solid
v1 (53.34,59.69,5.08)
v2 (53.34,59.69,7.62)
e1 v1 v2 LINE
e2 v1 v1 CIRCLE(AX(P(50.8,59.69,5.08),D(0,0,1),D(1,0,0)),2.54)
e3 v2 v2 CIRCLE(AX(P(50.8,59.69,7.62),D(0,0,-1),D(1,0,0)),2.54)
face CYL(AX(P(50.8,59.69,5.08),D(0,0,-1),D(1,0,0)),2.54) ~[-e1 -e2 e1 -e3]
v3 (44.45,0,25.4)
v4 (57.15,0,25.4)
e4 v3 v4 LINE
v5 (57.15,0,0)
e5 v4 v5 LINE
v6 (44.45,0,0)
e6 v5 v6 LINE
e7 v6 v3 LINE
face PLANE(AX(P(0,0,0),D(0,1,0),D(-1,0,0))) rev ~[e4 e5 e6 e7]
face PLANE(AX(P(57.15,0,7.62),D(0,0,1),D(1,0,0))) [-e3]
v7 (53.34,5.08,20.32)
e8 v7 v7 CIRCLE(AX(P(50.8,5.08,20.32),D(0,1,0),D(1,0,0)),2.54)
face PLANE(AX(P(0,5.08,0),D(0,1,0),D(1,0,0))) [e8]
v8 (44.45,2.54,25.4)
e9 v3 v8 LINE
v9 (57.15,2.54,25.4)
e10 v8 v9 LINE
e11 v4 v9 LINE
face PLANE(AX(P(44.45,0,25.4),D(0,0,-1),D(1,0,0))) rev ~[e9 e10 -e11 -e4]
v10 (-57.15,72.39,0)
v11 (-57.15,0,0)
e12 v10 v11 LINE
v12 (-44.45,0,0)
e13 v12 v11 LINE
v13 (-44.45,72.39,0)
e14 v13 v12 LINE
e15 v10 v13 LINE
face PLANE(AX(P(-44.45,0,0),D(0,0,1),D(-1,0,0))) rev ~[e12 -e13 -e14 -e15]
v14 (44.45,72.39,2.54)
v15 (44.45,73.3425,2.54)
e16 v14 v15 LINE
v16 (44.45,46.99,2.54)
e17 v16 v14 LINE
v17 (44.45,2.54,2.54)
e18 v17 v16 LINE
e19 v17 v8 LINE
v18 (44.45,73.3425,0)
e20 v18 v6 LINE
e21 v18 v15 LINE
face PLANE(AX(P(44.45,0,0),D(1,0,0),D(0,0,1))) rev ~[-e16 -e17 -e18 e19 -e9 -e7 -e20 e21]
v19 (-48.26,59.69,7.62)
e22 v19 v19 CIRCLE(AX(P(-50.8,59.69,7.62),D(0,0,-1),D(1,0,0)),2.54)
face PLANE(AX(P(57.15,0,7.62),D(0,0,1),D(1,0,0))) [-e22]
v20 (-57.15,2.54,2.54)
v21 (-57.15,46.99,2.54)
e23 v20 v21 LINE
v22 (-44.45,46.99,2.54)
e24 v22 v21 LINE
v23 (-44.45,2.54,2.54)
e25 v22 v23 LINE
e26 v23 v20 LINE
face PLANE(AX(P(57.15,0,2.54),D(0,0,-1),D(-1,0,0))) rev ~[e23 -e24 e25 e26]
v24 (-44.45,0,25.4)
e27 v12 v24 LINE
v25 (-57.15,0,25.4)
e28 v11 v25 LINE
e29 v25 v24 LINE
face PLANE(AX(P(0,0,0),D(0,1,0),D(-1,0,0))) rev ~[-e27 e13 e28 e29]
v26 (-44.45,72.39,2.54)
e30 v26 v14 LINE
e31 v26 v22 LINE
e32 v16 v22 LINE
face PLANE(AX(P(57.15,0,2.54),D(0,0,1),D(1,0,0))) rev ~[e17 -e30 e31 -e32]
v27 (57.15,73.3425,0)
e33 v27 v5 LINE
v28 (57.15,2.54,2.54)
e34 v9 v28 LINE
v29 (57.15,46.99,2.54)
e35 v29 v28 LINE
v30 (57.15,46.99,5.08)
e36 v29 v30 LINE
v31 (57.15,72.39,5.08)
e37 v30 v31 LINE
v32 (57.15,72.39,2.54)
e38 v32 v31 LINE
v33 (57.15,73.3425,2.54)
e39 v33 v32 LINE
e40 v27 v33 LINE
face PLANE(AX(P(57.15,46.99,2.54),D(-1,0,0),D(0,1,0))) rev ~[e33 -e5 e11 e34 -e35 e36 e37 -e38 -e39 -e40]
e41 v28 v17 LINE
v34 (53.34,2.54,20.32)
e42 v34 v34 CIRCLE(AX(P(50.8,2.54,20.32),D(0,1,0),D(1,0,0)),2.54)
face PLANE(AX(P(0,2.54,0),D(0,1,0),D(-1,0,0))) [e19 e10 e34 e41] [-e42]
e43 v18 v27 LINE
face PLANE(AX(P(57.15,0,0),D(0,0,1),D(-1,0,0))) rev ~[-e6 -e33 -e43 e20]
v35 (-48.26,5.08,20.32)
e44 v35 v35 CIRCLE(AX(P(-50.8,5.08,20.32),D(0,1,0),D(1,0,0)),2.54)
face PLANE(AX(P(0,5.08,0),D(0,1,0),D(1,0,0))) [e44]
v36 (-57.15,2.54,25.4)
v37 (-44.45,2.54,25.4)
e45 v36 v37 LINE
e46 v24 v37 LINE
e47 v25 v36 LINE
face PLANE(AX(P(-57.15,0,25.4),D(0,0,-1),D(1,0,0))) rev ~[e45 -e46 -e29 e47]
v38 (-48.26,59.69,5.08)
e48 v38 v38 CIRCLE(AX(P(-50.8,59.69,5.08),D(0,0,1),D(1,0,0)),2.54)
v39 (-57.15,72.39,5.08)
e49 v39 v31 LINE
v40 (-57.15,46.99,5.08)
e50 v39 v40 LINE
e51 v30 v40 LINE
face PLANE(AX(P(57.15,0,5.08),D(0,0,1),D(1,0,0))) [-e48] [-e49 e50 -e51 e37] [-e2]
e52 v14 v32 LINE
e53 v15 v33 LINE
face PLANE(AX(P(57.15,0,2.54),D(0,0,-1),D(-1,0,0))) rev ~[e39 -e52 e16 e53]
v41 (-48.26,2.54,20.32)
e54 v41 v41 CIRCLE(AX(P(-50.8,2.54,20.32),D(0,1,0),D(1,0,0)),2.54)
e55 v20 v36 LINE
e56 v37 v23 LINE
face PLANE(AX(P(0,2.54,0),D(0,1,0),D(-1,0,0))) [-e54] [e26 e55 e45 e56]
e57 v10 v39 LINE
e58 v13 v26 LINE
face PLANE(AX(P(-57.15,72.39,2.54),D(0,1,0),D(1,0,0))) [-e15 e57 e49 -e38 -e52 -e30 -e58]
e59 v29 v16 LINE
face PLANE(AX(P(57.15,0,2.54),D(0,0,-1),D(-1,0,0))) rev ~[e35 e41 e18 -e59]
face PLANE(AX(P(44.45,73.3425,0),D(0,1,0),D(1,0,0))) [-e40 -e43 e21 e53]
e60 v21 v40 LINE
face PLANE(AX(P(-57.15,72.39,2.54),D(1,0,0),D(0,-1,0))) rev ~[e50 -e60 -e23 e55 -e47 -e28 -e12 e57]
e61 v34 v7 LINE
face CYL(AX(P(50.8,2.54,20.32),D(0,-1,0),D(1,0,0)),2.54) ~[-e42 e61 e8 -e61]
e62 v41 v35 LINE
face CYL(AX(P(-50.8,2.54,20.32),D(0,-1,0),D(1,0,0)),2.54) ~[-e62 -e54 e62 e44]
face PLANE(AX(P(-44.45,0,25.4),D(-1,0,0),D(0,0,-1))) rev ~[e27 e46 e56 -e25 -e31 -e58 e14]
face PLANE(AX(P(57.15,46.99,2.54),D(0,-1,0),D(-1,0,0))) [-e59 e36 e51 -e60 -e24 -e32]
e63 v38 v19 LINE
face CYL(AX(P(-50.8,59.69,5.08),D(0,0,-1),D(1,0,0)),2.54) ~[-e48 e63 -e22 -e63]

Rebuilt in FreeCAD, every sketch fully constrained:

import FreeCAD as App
import Part
import Sketcher

V = App.Vector
Q = App.Units.Quantity


def add_polygon(sketch, points):
    """Adds a closed chain of lines whose ends are joined by coincident constraints."""
    first, n = sketch.GeometryCount, len(points)
    for a, b in zip(points, points[1:] + points[:1]):
        sketch.addGeometry(Part.LineSegment(App.Vector(*a, 0), App.Vector(*b, 0)), False)
    for i in range(n):
        sketch.addConstraint(Sketcher.Constraint("Coincident", first + i, 2, first + (i + 1) % n, 1))

doc = App.newDocument("Part")
body = doc.addObject("PartDesign::Body", "Body")
body.AllowCompound = True

# Sketch on XZ plane
sketch1 = body.newObject("Sketcher::SketchObject", "Sketch")
sketch1.AttachmentSupport = (doc.getObject("XZ_Plane"), [""])
sketch1.MapMode = "FlatFace"
add_polygon(sketch1, [(-57, 0), (-57, 25), (-44, 25), (-44, 0)])  # lines 0-3
add_polygon(sketch1, [(44, 0), (44, 25), (57, 25), (57, 0)])  # lines 4-7
sketch1.addConstraint(Sketcher.Constraint("Vertical", 0))
sketch1.addConstraint(Sketcher.Constraint("Horizontal", 1))
sketch1.addConstraint(Sketcher.Constraint("Vertical", 2))
sketch1.addConstraint(Sketcher.Constraint("Horizontal", 3))
sketch1.addConstraint(Sketcher.Constraint("Vertical", 4))
sketch1.addConstraint(Sketcher.Constraint("Horizontal", 5))
sketch1.addConstraint(Sketcher.Constraint("Vertical", 6))
sketch1.addConstraint(Sketcher.Constraint("Horizontal", 7))
sketch1.addConstraint(Sketcher.Constraint("Symmetric", 3, 2, 6, 2, -1, 1))
sketch1.addConstraint(Sketcher.Constraint("Symmetric", 1, 2, 4, 2, -2))
sketch1.addConstraint(Sketcher.Constraint("PointOnObject", 2, 2, -1))
sketch1.addConstraint(Sketcher.Constraint("DistanceY", 0, 1, 0, 2, Q("1 in")))
sketch1.addConstraint(Sketcher.Constraint("DistanceX", 1, 1, 1, 2, Q("0.5 in")))
sketch1.addConstraint(Sketcher.Constraint("DistanceX", 0, 2, 5, 2, Q("4.5 in")))
pad1 = body.newObject("PartDesign::Pad", "Pad")
pad1.Profile = sketch1
pad1.Length = Q("0.1 in")
pad1.Reversed = True

# Sketch on XY plane
sketch2 = body.newObject("Sketcher::SketchObject", "Sketch001")
sketch2.AttachmentSupport = (doc.getObject("XY_Plane"), [""])
sketch2.MapMode = "FlatFace"
add_polygon(sketch2, [(57, 73), (57, 1), (44, 1), (44, 73)])  # lines 0-3
add_polygon(sketch2, [(-44, 72), (-44, 0), (-57, 0), (-57, 72)])  # lines 4-7
sketch2.addConstraint(Sketcher.Constraint("Vertical", 0))
sketch2.addConstraint(Sketcher.Constraint("Horizontal", 1))
sketch2.addConstraint(Sketcher.Constraint("Vertical", 2))
sketch2.addConstraint(Sketcher.Constraint("Horizontal", 3))
sketch2.addConstraint(Sketcher.Constraint("Vertical", 4))
sketch2.addConstraint(Sketcher.Constraint("Horizontal", 5))
sketch2.addConstraint(Sketcher.Constraint("Vertical", 6))
sketch2.addConstraint(Sketcher.Constraint("Horizontal", 7))
sketch2.addConstraint(Sketcher.Constraint("PointOnObject", 4, 2, -1))
sketch2.addConstraint(Sketcher.Constraint("Equal", 3, 5))
sketch2.addConstraint(Sketcher.Constraint("Equal", 2, 4))
sketch2.addConstraint(Sketcher.Constraint("DistanceX", 1, 2, 1, 1, Q("0.5 in")))
sketch2.addConstraint(Sketcher.Constraint("DistanceY", 0, 2, 0, 1, Q("2.85 in")))
sketch2.addConstraint(Sketcher.Constraint("DistanceX", 4, 2, 0, 2, Q("4 in")))
sketch2.addConstraint(Sketcher.Constraint("DistanceX", -1, 1, 0, 2, Q("2.25 in")))
sketch2.addConstraint(Sketcher.Constraint("DistanceY", 1, 2, 6, 2, Q("2.8125 in")))
pad2 = body.newObject("PartDesign::Pad", "Pad001")
pad2.Profile = sketch2
pad2.Length = Q("0.1 in")

# Sketch on XY plane
sketch3 = body.newObject("Sketcher::SketchObject", "Sketch002")
sketch3.AttachmentSupport = (doc.getObject("XY_Plane"), [""])
sketch3.MapMode = "FlatFace"
sketch3.AttachmentOffset = App.Placement(V(0, 0, 0.1 * 25.4), App.Rotation())
add_polygon(sketch3, [(57, 72), (-57, 72), (-57, 47), (57, 47)])  # lines 0-3
sketch3.addConstraint(Sketcher.Constraint("Horizontal", 0))
sketch3.addConstraint(Sketcher.Constraint("Vertical", 1))
sketch3.addConstraint(Sketcher.Constraint("Horizontal", 2))
sketch3.addConstraint(Sketcher.Constraint("Vertical", 3))
sketch3.addConstraint(Sketcher.Constraint("DistanceY", 1, 2, 1, 1, Q("1 in")))
sketch3.addConstraint(Sketcher.Constraint("DistanceX", 0, 2, 0, 1, Q("4.5 in")))
sketch3.addConstraint(Sketcher.Constraint("DistanceX", 0, 2, -1, 1, Q("2.25 in")))
sketch3.addConstraint(Sketcher.Constraint("DistanceY", -1, 1, 0, 2, Q("2.85 in")))
pad3 = body.newObject("PartDesign::Pad", "Pad002")
pad3.Profile = sketch3
pad3.Length = Q("0.1 in")

# Sketch on XY plane
sketch4 = body.newObject("Sketcher::SketchObject", "Sketch003")
sketch4.AttachmentSupport = (doc.getObject("XY_Plane"), [""])
sketch4.MapMode = "FlatFace"
sketch4.AttachmentOffset = App.Placement(V(0, 0, 0.2 * 25.4), App.Rotation())
sketch4.addGeometry(Part.Circle(V(-50.8, 59.7, 0), V(0, 0, 1), 2.5), False)
sketch4.addGeometry(Part.Circle(V(50.8, 59.7, 0), V(0, 0, 1), 2.5), False)
sketch4.addConstraint(Sketcher.Constraint("Equal", 0, 1))
sketch4.addConstraint(Sketcher.Constraint("Symmetric", 0, 3, 1, 3, -2))
sketch4.addConstraint(Sketcher.Constraint("Diameter", 0, Q("0.2 in")))
sketch4.addConstraint(Sketcher.Constraint("DistanceX", 0, 3, -1, 1, Q("2 in")))
sketch4.addConstraint(Sketcher.Constraint("DistanceY", -1, 1, 0, 3, Q("2.35 in")))
pad4 = body.newObject("PartDesign::Pad", "Pad003")
pad4.Profile = sketch4
pad4.Length = Q("0.1 in")

# Sketch on XZ plane
sketch5 = body.newObject("Sketcher::SketchObject", "Sketch004")
sketch5.AttachmentSupport = (doc.getObject("XZ_Plane"), [""])
sketch5.MapMode = "FlatFace"
sketch5.AttachmentOffset = App.Placement(V(0, 0, -0.1 * 25.4), App.Rotation())
sketch5.addGeometry(Part.Circle(V(-50.8, 20.3, 0), V(0, 0, 1), 2.5), False)
sketch5.addGeometry(Part.Circle(V(50.8, 20.3, 0), V(0, 0, 1), 2.5), False)
sketch5.addConstraint(Sketcher.Constraint("Equal", 0, 1))
sketch5.addConstraint(Sketcher.Constraint("Symmetric", 0, 3, 1, 3, -2))
sketch5.addConstraint(Sketcher.Constraint("Diameter", 0, Q("0.2 in")))
sketch5.addConstraint(Sketcher.Constraint("DistanceX", 0, 3, -1, 1, Q("2 in")))
sketch5.addConstraint(Sketcher.Constraint("DistanceY", -1, 1, 0, 3, Q("0.8 in")))
pad5 = body.newObject("PartDesign::Pad", "Pad004")
pad5.Profile = sketch5
pad5.Length = Q("0.1 in")
pad5.Reversed = True

doc.recompute()
